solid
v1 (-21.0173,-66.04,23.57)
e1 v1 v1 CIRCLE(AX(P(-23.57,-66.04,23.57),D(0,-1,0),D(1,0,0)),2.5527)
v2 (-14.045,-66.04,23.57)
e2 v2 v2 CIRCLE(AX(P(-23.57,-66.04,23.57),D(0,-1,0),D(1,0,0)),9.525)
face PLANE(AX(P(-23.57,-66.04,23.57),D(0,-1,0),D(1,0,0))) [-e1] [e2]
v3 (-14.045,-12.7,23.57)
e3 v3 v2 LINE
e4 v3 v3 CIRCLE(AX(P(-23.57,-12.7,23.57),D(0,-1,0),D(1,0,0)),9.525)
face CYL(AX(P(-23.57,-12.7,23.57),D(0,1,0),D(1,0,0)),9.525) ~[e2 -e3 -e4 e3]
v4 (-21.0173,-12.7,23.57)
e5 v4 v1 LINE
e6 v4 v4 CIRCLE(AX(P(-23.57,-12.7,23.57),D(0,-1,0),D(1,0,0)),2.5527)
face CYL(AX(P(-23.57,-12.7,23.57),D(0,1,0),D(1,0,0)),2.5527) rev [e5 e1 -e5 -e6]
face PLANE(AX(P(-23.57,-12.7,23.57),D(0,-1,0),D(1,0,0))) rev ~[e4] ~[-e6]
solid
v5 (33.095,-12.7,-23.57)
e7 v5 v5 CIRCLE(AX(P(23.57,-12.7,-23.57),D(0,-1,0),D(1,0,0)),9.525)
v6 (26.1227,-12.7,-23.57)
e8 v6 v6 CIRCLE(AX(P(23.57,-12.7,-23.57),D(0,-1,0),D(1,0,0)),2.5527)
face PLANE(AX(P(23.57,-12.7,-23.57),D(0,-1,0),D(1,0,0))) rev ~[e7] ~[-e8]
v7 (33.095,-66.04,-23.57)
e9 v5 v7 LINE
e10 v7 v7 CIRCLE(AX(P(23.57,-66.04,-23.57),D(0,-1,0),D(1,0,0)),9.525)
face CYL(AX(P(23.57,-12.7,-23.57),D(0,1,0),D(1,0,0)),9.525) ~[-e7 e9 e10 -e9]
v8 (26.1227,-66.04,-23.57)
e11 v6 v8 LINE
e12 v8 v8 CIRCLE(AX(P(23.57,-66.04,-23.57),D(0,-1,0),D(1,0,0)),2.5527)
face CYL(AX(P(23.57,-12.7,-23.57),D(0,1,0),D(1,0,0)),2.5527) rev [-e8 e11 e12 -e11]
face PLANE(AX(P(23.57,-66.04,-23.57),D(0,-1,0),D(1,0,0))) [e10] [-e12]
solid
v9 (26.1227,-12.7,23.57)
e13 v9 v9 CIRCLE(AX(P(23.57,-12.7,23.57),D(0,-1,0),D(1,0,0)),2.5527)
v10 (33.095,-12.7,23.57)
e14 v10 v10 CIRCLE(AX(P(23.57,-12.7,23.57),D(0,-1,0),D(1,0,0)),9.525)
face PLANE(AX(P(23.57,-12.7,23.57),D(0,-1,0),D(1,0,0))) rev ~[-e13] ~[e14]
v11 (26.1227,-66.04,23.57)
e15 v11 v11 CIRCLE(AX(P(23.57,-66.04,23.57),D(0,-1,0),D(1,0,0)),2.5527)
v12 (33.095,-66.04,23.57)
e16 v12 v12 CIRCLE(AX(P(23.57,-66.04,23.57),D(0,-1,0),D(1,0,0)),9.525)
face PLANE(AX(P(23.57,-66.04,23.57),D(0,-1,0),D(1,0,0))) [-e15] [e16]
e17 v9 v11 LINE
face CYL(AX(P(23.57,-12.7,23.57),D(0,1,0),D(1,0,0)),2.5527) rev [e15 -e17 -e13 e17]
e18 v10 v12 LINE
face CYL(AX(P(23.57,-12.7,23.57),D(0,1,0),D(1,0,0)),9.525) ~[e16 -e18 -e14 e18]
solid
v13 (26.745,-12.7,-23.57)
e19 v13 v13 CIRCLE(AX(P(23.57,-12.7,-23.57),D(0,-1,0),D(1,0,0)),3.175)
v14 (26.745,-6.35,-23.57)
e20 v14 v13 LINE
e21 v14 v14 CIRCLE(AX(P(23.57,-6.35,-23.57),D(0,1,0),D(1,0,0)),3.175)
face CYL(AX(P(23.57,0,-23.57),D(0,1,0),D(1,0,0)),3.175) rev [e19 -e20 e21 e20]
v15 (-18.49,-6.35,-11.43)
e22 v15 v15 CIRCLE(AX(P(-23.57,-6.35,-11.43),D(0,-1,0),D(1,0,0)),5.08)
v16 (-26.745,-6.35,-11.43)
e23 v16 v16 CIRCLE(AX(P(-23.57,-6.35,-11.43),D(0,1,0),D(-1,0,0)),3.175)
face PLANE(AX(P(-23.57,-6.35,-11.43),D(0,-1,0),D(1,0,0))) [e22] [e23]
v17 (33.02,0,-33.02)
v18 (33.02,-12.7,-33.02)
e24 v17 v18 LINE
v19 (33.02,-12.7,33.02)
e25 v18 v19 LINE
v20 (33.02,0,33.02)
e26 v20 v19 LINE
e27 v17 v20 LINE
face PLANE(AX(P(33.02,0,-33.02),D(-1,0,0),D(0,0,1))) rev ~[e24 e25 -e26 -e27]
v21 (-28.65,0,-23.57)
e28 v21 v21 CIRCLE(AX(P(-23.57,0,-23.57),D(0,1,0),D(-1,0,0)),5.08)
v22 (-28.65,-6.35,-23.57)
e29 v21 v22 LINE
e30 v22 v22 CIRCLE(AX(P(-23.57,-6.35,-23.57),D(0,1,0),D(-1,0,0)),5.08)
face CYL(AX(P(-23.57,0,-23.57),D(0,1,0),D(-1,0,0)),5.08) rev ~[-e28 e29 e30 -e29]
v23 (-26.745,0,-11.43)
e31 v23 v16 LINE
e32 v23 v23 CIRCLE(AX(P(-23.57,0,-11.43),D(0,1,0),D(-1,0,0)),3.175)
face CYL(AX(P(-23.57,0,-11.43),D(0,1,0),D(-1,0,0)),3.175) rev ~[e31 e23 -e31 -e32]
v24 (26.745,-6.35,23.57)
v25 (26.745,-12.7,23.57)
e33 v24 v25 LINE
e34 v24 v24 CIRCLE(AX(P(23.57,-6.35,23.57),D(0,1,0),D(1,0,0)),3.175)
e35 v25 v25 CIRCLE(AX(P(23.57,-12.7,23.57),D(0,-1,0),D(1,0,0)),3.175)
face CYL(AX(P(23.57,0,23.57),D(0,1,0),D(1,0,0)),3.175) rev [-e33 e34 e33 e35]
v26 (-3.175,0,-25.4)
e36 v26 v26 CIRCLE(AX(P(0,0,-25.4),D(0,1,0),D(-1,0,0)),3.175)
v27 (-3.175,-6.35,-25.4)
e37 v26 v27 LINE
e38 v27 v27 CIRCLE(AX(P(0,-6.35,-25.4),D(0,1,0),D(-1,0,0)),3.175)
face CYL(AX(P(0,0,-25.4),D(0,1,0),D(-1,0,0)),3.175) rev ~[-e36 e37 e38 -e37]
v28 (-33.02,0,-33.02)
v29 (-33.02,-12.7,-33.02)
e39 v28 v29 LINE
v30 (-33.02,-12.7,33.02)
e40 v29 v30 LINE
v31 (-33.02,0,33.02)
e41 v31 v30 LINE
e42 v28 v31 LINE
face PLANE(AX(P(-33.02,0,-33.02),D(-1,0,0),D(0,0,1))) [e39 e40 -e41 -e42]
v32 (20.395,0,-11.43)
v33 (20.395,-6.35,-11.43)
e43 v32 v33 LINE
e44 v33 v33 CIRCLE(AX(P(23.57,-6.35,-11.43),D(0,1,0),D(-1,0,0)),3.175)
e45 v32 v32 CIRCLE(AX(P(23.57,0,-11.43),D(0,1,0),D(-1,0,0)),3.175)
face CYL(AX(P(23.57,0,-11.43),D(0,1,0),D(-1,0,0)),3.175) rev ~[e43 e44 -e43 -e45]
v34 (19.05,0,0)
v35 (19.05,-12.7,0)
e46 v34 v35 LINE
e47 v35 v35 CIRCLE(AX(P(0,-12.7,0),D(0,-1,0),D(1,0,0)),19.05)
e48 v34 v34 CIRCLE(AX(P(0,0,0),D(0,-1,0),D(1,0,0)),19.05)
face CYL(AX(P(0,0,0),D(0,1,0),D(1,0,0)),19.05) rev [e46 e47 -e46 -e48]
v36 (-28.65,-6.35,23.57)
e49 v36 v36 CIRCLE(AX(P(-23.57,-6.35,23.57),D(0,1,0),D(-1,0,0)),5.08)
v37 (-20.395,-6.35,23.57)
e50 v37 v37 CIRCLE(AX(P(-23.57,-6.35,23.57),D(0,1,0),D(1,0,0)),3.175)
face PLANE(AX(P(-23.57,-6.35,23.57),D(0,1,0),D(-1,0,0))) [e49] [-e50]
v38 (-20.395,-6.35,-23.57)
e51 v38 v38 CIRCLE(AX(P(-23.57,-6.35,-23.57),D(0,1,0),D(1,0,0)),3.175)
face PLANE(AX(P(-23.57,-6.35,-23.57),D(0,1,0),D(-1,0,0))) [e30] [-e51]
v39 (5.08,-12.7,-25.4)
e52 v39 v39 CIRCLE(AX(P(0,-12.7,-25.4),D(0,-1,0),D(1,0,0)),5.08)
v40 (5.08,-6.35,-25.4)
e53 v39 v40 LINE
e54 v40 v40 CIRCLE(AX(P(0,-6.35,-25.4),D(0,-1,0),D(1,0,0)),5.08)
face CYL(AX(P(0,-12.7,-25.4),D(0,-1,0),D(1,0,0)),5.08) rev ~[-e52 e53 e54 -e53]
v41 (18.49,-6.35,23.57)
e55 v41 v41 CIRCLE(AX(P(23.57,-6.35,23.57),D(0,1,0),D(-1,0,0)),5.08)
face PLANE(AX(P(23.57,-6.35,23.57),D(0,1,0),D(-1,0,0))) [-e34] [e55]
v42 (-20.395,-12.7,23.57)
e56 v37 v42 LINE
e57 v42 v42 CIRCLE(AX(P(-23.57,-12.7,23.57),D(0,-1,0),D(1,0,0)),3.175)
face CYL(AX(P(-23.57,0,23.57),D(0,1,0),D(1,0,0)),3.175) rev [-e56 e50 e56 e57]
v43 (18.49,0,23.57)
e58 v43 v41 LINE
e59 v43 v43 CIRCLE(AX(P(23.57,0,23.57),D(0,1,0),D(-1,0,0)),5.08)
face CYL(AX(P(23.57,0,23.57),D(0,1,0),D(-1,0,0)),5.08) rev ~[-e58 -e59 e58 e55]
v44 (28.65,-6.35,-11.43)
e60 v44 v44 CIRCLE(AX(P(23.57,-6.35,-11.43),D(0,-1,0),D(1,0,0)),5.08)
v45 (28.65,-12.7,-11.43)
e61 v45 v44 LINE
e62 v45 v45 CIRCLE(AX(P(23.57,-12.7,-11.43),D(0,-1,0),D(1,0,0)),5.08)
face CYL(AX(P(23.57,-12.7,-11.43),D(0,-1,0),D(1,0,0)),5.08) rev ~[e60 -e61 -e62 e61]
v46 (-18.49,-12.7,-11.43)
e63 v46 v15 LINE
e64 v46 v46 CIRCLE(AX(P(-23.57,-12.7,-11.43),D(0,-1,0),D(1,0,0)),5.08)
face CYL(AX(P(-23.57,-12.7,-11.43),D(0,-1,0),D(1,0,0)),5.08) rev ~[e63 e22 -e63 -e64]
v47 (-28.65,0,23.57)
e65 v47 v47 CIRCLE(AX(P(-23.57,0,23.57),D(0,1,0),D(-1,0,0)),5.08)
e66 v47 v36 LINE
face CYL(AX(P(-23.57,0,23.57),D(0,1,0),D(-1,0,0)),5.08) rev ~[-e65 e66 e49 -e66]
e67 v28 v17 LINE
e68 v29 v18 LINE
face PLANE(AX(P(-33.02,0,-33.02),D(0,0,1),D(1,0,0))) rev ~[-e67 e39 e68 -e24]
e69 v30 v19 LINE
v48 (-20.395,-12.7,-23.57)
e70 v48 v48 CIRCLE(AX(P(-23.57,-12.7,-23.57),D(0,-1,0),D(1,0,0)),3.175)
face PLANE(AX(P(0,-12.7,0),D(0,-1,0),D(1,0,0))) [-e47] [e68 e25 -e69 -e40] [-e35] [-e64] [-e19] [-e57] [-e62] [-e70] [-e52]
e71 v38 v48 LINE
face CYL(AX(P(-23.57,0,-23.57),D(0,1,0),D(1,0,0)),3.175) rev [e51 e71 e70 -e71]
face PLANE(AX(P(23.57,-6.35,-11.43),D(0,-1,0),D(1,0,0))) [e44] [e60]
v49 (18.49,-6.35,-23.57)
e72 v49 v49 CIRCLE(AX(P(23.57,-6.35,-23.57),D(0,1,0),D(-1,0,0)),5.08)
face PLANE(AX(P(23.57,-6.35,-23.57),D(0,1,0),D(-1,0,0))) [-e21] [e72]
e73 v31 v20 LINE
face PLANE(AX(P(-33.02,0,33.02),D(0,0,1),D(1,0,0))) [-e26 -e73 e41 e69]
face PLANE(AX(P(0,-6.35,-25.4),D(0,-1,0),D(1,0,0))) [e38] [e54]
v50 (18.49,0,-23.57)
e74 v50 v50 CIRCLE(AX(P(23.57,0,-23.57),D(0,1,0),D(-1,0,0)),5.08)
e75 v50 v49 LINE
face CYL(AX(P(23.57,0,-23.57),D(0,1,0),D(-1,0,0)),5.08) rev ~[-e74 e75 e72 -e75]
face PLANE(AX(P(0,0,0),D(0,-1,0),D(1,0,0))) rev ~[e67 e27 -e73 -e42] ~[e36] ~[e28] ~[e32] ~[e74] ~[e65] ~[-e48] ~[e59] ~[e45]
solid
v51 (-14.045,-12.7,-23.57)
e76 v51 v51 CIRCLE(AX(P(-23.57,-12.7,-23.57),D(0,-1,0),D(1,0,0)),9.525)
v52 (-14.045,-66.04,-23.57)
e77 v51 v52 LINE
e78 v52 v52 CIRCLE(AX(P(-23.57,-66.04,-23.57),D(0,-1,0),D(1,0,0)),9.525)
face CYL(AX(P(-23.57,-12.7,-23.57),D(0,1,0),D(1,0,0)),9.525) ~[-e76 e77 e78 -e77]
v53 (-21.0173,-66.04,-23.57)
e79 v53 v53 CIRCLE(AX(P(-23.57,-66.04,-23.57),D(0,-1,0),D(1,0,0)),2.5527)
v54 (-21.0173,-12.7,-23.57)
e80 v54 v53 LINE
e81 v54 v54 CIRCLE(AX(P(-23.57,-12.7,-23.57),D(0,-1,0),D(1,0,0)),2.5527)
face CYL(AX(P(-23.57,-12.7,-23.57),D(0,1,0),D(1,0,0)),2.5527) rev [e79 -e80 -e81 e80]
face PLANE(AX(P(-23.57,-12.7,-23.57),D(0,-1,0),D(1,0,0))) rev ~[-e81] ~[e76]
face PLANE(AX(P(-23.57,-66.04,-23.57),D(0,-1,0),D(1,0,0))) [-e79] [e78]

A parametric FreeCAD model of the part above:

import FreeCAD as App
import Part
import Sketcher
from FreeCAD import Vector
Q = App.Units.Quantity


def add_polygon(sketch, points):
    """Adds a closed chain of lines whose ends are joined by coincident constraints."""
    first, n = sketch.GeometryCount, len(points)
    for a, b in zip(points, points[1:] + points[:1]):
        sketch.addGeometry(Part.LineSegment(App.Vector(*a, 0), App.Vector(*b, 0)), False)
    for i in range(n):
        sketch.addConstraint(Sketcher.Constraint("Coincident", first + i, 2, first + (i + 1) % n, 1))

doc = App.newDocument("Part")
params = doc.addObject("Spreadsheet::Sheet", "Params")
for row, (alias, value) in enumerate([
    ("sketch1_diameter", "1.5 in"),
    ("sketch1_diameter2", "0.25 in"),
    ("sketch1_width", "2.6 in"),
    ("pad1_length", "0.5 in"),
    ("sketch2_diameter", "0.4 in"),
    ("pocket1_length", "0.25 in"),
    ("sketch3_diameter", "0.25 in"),
    ("sketch4_diameter", "0.4 in"),
    ("pocket3_length", "0.25 in"),
    ("sketch5_diameter", "0.75 in"),
    ("sketch5_diameter2", "0.201 in"),
    ("pad2_length", "2.1 in"),
], start=1):
    params.set(f"A{row}", alias)
    params.set(f"B{row}", "=" + value)
    params.setAlias(f"B{row}", alias)

body = doc.addObject("PartDesign::Body", "Body")

# Sketch on XZ plane
sketch1 = doc.addObject("Sketcher::SketchObject", "Sketch")
body.addObject(sketch1)
sketch1.AttachmentSupport = (doc.XZ_Plane, [""])
sketch1.MapMode = "FlatFace"
add_polygon(sketch1, [(-33, 33), (-33, -33), (33, -33), (33, 33)])  # lines 0-3
sketch1.addGeometry(Part.Circle(Vector(-23.6, -23.6, 0), Vector(0, 0, 1), 3.2), False)  # 4
sketch1.addGeometry(Part.Circle(Vector(23.6, -23.6, 0), Vector(0, 0, 1), 3.2), False)  # 5
sketch1.addGeometry(Part.Circle(Vector(-23.6, 23.6, 0), Vector(0, 0, 1), 3.2), False)  # 6
sketch1.addGeometry(Part.Circle(Vector(0, 0, 0), Vector(0, 0, 1), 19.1), False)  # 7
sketch1.addGeometry(Part.Circle(Vector(23.6, 23.6, 0), Vector(0, 0, 1), 3.2), False)  # 8
sketch1.addConstraint([
    Sketcher.Constraint("Vertical", 0),
    Sketcher.Constraint("Horizontal", 1),
    Sketcher.Constraint("Vertical", 2),
    Sketcher.Constraint("Horizontal", 3),
    Sketcher.Constraint("Coincident", 7, 3, -1, 1),
    Sketcher.Constraint("Equal", 4, 5),
    Sketcher.Constraint("Equal", 5, 6),
    Sketcher.Constraint("Equal", 6, 8),
    Sketcher.Constraint("Symmetric", 5, 3, 6, 3, -1, 1),
    Sketcher.Constraint("Symmetric", 4, 3, 8, 3, -1, 1),
    Sketcher.Constraint("Symmetric", 0, 2, 2, 2, -1, 1),
    Sketcher.Constraint("Symmetric", 4, 3, 5, 3, -2),
    Sketcher.Constraint("Equal", 3, 0),
    Sketcher.Constraint("Diameter", 7, Q("1.5 in")),
    Sketcher.Constraint("Diameter", 4, Q("0.25 in")),
    Sketcher.Constraint("DistanceX", 1, 1, 1, 2, Q("2.6 in")),
    Sketcher.Constraint("DistanceX", 4, 3, -1, 1, 23.57),
    Sketcher.Constraint("DistanceY", 4, 3, -1, 1, 23.57),
])
sketch1.setExpression("Constraints[17]", "Params.sketch1_diameter")
sketch1.setExpression("Constraints[18]", "Params.sketch1_diameter2")
sketch1.setExpression("Constraints[19]", "Params.sketch1_width")
pad1 = doc.addObject("PartDesign::Pad", "Pad")
body.addObject(pad1)
pad1.Profile = sketch1
pad1.setExpression("Length", "Params.pad1_length")

# Sketch on XZ plane
sketch2 = doc.addObject("Sketcher::SketchObject", "Sketch001")
body.addObject(sketch2)
sketch2.AttachmentSupport = (doc.XZ_Plane, [""])
sketch2.MapMode = "FlatFace"
sketch2.addGeometry([
    Part.Circle(Vector(-24, -24, 0), Vector(0, 0, 1), 5),
    Part.Circle(Vector(24, -24, 0), Vector(0, 0, 1), 5),
    Part.Circle(Vector(24, 24, 0), Vector(0, 0, 1), 5),
    Part.Circle(Vector(-24, 24, 0), Vector(0, 0, 1), 5),
], False)
sketch2.addConstraint([
    Sketcher.Constraint("Equal", 0, 1),
    Sketcher.Constraint("Equal", 1, 2),
    Sketcher.Constraint("Equal", 2, 3),
    Sketcher.Constraint("Symmetric", 0, 3, 2, 3, -1, 1),
    Sketcher.Constraint("Symmetric", 1, 3, 3, 3, -1, 1),
    Sketcher.Constraint("Symmetric", 0, 3, 1, 3, -2),
    Sketcher.Constraint("Diameter", 0, Q("0.4 in")),
    Sketcher.Constraint("DistanceX", 0, 3, -1, 1, 23.57),
    Sketcher.Constraint("DistanceY", 0, 3, -1, 1, 23.57),
])
sketch2.setExpression("Constraints[6]", "Params.sketch2_diameter")
pocket1 = doc.addObject("PartDesign::Pocket", "Pocket")
body.addObject(pocket1)
pocket1.Profile = sketch2
pocket1.setExpression("Length", "Params.pocket1_length")
pocket1.Reversed = True

# Sketch on XZ plane
sketch3 = doc.addObject("Sketcher::SketchObject", "Sketch002")
body.addObject(sketch3)
sketch3.AttachmentSupport = (doc.XZ_Plane, [""])
sketch3.MapMode = "FlatFace"
sketch3.addGeometry([
    Part.Circle(Vector(-23.6, -11.4, 0), Vector(0, 0, 1), 3.2),
    Part.Circle(Vector(23.6, -11.4, 0), Vector(0, 0, 1), 3.2),
    Part.Circle(Vector(0, -25.4, 0), Vector(0, 0, 1), 3.2),
], False)
sketch3.addConstraint([
    Sketcher.Constraint("Equal", 0, 1),
    Sketcher.Constraint("Equal", 1, 2),
    Sketcher.Constraint("Symmetric", 0, 3, 1, 3, -2),
    Sketcher.Constraint("PointOnObject", 2, 3, -2),
    Sketcher.Constraint("Diameter", 0, Q("0.25 in")),
    Sketcher.Constraint("DistanceY", 2, 3, -1, 1, Q("1 in")),
    Sketcher.Constraint("DistanceY", 0, 3, -1, 1, Q("0.45 in")),
    Sketcher.Constraint("DistanceX", 0, 3, -1, 1, 23.57),
])
sketch3.setExpression("Constraints[4]", "Params.sketch3_diameter")
pocket2 = doc.addObject("PartDesign::Pocket", "Pocket001")
body.addObject(pocket2)
pocket2.Profile = sketch3
pocket2.Type = "ThroughAll"
pocket2.Reversed = True

# Sketch on XZ plane
sketch4 = doc.addObject("Sketcher::SketchObject", "Sketch003")
body.addObject(sketch4)
sketch4.AttachmentSupport = (doc.XZ_Plane, [""])
sketch4.MapMode = "FlatFace"
sketch4.AttachmentOffset = App.Placement(Vector(0, 0, 0.5 * 25.4), App.Rotation())
sketch4.addGeometry([
    Part.Circle(Vector(24, -11, 0), Vector(0, 0, 1), 5),
    Part.Circle(Vector(0, -25, 0), Vector(0, 0, 1), 5),
    Part.Circle(Vector(-24, -11, 0), Vector(0, 0, 1), 5),
], False)
sketch4.addConstraint([
    Sketcher.Constraint("Equal", 0, 1),
    Sketcher.Constraint("Equal", 1, 2),
    Sketcher.Constraint("Symmetric", 0, 3, 2, 3, -2),
    Sketcher.Constraint("PointOnObject", 1, 3, -2),
    Sketcher.Constraint("Diameter", 0, Q("0.4 in")),
    Sketcher.Constraint("DistanceY", 1, 3, -1, 1, Q("1 in")),
    Sketcher.Constraint("DistanceY", 0, 3, -1, 1, Q("0.45 in")),
    Sketcher.Constraint("DistanceX", -1, 1, 0, 3, 23.57),
])
sketch4.setExpression("Constraints[4]", "Params.sketch4_diameter")
pocket3 = doc.addObject("PartDesign::Pocket", "Pocket002")
body.addObject(pocket3)
pocket3.Profile = sketch4
pocket3.setExpression("Length", "Params.pocket3_length")
body2 = doc.addObject("PartDesign::Body", "Body001")
body2.AllowCompound = True

# Sketch on XZ plane
sketch5 = doc.addObject("Sketcher::SketchObject", "Sketch004")
body2.addObject(sketch5)
sketch5.AttachmentSupport = (doc.getObject("XZ_Plane001"), [""])
sketch5.MapMode = "FlatFace"
sketch5.AttachmentOffset = App.Placement(Vector(0, 0, 0.5 * 25.4), App.Rotation())
sketch5.addGeometry([
    Part.Circle(Vector(23.6, -23.6, 0), Vector(0, 0, 1), 9.5),  # 0
    Part.Circle(Vector(23.6, -23.6, 0), Vector(0, 0, 1), 2.6),  # 1
    Part.Circle(Vector(-23.6, -23.6, 0), Vector(0, 0, 1), 9.5),  # 2
    Part.Circle(Vector(-23.6, -23.6, 0), Vector(0, 0, 1), 2.6),  # 3
    Part.Circle(Vector(23.6, 23.6, 0), Vector(0, 0, 1), 9.5),  # 4
    Part.Circle(Vector(23.6, 23.6, 0), Vector(0, 0, 1), 2.6),  # 5
    Part.Circle(Vector(-23.6, 23.6, 0), Vector(0, 0, 1), 9.5),  # 6
    Part.Circle(Vector(-23.6, 23.6, 0), Vector(0, 0, 1), 2.6),  # 7
], False)
sketch5.addConstraint([
    Sketcher.Constraint("Coincident", 1, 3, 0, 3),
    Sketcher.Constraint("Coincident", 3, 3, 2, 3),
    Sketcher.Constraint("Coincident", 5, 3, 4, 3),
    Sketcher.Constraint("Coincident", 7, 3, 6, 3),
    Sketcher.Constraint("Equal", 0, 2),
    Sketcher.Constraint("Equal", 1, 3),
    Sketcher.Constraint("Equal", 2, 4),
    Sketcher.Constraint("Equal", 3, 5),
    Sketcher.Constraint("Equal", 4, 6),
    Sketcher.Constraint("Equal", 5, 7),
    Sketcher.Constraint("Symmetric", 2, 3, 4, 3, -1, 1),
    Sketcher.Constraint("Symmetric", 0, 3, 6, 3, -1, 1),
    Sketcher.Constraint("Symmetric", 0, 3, 2, 3, -2),
    Sketcher.Constraint("Diameter", 0, Q("0.75 in")),
    Sketcher.Constraint("Diameter", 1, Q("0.201 in")),
    Sketcher.Constraint("DistanceX", -1, 1, 0, 3, 23.57),
    Sketcher.Constraint("DistanceY", 0, 3, -1, 1, 23.57),
])
sketch5.setExpression("Constraints[13]", "Params.sketch5_diameter")
sketch5.setExpression("Constraints[14]", "Params.sketch5_diameter2")
pad2 = doc.addObject("PartDesign::Pad", "Pad001")
body2.addObject(pad2)
pad2.Profile = sketch5
pad2.setExpression("Length", "Params.pad2_length")

doc.recompute()
